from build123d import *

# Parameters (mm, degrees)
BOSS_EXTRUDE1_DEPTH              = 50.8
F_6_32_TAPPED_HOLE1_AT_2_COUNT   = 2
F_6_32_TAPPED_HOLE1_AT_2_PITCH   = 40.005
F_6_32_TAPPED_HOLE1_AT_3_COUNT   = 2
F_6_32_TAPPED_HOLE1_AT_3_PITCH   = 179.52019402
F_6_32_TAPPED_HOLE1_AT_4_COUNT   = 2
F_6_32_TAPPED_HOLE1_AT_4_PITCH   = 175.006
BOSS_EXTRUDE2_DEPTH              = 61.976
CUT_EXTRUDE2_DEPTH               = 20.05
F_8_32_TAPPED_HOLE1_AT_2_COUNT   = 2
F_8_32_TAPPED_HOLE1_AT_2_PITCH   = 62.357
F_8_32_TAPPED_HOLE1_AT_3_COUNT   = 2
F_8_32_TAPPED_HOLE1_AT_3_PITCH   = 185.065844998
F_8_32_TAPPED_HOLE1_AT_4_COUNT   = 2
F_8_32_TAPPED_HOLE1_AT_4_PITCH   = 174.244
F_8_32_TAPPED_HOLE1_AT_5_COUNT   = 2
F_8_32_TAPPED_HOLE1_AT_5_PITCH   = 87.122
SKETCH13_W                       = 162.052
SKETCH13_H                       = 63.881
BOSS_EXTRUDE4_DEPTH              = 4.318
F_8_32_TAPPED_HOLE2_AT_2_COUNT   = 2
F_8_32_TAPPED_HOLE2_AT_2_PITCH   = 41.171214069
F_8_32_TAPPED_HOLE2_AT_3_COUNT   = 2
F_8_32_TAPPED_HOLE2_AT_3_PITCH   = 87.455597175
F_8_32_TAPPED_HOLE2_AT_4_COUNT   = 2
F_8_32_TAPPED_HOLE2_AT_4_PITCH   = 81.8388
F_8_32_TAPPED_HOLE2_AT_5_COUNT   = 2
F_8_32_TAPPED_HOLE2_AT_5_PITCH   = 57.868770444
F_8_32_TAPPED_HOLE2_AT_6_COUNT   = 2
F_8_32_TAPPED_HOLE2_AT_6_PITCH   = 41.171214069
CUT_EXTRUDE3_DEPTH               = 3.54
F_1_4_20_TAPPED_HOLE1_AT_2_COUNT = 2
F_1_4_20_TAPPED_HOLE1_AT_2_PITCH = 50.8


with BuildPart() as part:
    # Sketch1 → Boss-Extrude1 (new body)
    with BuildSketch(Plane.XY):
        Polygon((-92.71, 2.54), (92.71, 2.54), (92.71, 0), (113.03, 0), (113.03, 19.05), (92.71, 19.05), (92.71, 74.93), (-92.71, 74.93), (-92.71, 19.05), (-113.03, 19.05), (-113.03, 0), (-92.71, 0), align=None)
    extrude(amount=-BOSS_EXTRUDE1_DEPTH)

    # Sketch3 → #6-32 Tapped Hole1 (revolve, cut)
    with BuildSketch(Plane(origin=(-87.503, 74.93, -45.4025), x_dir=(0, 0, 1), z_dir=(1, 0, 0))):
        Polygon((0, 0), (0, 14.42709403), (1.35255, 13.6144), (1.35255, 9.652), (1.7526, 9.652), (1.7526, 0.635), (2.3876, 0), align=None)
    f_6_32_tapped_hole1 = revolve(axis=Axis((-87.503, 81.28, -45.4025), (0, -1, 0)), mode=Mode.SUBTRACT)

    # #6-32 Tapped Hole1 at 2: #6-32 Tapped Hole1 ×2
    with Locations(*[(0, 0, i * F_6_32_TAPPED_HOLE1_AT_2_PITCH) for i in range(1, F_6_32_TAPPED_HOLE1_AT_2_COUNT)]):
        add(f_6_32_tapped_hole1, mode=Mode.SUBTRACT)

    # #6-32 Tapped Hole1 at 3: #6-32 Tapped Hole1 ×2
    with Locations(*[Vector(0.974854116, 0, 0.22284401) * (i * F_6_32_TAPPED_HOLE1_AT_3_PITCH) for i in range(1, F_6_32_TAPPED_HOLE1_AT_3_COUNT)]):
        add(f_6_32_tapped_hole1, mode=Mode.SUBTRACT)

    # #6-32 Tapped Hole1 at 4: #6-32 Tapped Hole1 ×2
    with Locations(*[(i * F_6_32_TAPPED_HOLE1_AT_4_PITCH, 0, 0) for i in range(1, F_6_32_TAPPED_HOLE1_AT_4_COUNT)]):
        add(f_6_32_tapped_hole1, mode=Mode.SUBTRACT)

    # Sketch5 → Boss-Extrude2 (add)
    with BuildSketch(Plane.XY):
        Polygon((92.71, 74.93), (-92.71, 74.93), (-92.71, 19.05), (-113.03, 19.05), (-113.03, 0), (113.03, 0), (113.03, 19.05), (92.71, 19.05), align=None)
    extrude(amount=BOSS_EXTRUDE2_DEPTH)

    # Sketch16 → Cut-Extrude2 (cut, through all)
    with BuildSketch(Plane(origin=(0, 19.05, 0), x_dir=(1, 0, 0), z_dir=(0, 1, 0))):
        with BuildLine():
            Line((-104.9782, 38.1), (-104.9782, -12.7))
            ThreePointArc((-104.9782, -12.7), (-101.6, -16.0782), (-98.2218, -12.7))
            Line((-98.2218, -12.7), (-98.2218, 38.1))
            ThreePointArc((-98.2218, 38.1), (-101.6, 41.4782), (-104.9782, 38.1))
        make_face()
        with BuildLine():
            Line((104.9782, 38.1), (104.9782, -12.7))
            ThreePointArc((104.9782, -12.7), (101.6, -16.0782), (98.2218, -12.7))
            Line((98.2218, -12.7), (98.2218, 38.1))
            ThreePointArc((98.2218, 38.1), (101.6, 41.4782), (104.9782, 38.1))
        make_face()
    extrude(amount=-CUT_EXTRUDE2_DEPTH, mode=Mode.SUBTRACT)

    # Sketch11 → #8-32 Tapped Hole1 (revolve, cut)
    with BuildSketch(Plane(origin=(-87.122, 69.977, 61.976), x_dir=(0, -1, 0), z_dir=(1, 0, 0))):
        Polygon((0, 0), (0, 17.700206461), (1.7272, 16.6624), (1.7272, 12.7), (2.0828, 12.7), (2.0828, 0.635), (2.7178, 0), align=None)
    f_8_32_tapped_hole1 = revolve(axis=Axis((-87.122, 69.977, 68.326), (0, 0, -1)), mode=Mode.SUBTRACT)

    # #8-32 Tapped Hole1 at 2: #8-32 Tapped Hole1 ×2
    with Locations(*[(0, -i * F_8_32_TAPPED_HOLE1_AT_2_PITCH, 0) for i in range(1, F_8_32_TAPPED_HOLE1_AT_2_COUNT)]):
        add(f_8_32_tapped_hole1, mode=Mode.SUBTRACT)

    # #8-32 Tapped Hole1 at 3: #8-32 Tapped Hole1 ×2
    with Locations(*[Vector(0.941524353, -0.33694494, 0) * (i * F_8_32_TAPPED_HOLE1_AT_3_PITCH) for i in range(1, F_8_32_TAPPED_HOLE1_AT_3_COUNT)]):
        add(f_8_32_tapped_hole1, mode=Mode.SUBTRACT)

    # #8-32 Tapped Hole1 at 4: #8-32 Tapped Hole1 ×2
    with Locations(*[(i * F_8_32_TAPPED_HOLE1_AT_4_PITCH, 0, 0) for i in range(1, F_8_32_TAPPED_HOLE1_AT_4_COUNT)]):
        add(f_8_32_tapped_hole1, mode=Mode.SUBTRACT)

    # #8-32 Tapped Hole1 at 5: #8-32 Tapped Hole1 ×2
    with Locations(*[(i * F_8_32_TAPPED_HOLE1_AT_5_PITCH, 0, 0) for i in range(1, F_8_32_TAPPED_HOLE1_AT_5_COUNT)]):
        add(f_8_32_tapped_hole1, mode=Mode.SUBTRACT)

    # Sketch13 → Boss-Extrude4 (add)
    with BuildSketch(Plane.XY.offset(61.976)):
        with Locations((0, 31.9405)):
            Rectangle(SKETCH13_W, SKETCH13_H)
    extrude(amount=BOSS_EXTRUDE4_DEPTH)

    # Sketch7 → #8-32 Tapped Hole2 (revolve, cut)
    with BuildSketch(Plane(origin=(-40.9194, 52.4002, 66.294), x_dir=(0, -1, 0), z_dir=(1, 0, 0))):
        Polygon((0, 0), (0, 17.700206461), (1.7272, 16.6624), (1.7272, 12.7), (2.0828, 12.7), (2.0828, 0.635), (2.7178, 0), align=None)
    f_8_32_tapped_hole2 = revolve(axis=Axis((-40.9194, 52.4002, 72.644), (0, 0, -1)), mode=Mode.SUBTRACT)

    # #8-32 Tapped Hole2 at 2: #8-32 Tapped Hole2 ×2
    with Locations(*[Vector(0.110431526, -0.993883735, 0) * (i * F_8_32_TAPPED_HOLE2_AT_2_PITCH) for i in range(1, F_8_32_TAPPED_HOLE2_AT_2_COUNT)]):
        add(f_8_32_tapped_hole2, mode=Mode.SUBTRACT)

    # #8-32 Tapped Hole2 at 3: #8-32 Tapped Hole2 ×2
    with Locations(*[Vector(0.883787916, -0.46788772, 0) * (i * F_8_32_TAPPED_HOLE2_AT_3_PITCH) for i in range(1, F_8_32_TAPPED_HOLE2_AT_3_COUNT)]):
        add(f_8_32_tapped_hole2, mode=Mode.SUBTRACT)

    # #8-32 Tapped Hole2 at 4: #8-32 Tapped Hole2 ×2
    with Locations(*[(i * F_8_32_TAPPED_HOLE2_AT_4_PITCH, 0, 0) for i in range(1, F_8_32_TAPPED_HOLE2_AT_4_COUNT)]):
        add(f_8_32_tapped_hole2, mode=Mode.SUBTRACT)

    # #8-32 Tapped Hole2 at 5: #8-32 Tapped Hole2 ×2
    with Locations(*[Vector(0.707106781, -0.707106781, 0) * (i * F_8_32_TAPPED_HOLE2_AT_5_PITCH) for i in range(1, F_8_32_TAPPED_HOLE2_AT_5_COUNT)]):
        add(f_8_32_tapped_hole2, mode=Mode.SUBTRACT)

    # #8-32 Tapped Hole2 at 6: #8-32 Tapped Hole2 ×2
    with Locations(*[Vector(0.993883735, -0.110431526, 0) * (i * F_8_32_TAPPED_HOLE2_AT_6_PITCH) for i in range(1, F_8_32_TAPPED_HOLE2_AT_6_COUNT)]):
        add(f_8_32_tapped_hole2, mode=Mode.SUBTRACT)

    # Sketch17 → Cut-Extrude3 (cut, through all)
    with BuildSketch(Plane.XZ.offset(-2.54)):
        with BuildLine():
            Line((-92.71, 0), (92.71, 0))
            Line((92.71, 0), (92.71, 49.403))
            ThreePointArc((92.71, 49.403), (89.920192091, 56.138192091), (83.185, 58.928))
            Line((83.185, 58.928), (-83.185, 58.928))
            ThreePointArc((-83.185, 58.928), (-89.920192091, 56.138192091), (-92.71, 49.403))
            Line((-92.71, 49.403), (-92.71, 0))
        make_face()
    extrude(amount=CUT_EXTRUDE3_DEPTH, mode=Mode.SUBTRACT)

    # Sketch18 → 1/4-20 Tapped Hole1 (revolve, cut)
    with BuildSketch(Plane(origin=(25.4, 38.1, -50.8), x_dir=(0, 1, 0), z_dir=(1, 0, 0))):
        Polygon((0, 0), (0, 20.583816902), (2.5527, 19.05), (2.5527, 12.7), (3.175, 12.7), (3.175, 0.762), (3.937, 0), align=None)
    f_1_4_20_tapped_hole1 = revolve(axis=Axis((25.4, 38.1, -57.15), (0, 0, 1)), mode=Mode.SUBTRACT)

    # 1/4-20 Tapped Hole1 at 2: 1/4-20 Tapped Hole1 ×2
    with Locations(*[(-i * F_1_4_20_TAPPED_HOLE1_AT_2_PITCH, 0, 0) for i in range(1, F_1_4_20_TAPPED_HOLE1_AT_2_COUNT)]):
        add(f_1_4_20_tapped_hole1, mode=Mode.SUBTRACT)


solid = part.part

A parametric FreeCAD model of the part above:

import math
import FreeCAD as App
import Part
import Sketcher

V = App.Vector
Q = App.Units.Quantity

doc = App.newDocument("Part")
params = doc.addObject("Spreadsheet::Sheet", "Params")
for row, (alias, value) in enumerate([
    ("sketch1_width", "7.3 in"),
    ("sketch1_width2", "0.8 in"),
    ("sketch1_height", "0.1 in"),
    ("sketch1_height2", "2.2 in"),
    ("sketch1_height3", "0.75 in"),
    ("pad1_length", "2 in"),
    ("sketch2_width", "0.355 in"),
    ("sketch2_width2", "0.156 in"),
    ("sketch2_height", "0.094 in"),
    ("groove_angle", "360 deg"),
    ("linearpattern_pitch", "1.575 in"),
    ("linearpattern2_pitch", "179.520194 mm"),
    ("linearpattern3_pitch", "6.89 in"),
    ("sketch3_width", "7.3 in"),
    ("sketch3_width2", "0.8 in"),
    ("sketch3_height", "2.2 in"),
    ("sketch3_height2", "0.75 in"),
    ("pad2_length", "2.44 in"),
    ("sketch4_height", "2 in"),
    ("sketch4_radius", "0.133 in"),
    ("sketch5_width", "0.107 in"),
    ("sketch5_width2", "0.014 in"),
    ("sketch5_height", "0.475 in"),
    ("sketch5_height2", "0.156 in"),
    ("groove2_angle", "360 deg"),
    ("linearpattern4_pitch", "2.455 in"),
    ("linearpattern5_pitch", "185.065845 mm"),
    ("linearpattern6_pitch", "6.86 in"),
    ("linearpattern7_pitch", "3.43 in"),
    ("sketch6_width", "6.38 in"),
    ("sketch6_height", "2.515 in"),
    ("pad3_length", "0.17 in"),
    ("sketch7_width", "0.107 in"),
    ("sketch7_width2", "0.014 in"),
    ("sketch7_height", "0.475 in"),
    ("sketch7_height2", "0.156 in"),
    ("groove3_angle", "360 deg"),
    ("linearpattern8_pitch", "41.171214 mm"),
    ("linearpattern9_pitch", "87.455597 mm"),
    ("linearpattern10_pitch", "3.222 in"),
    ("linearpattern11_pitch", "57.86877 mm"),
    ("linearpattern12_pitch", "41.171214 mm"),
    ("sketch8_width", "7.3 in"),
    ("sketch8_radius", "0.375 in"),
    ("sketch8_height", "1.945 in"),
    ("sketch9_height", "0.47 in"),
    ("sketch9_height2", "0.25 in"),
    ("sketch9_width", "0.155 in"),
    ("groove4_angle", "360 deg"),
    ("linearpattern13_pitch", "2 in"),
], start=1):
    params.set(f"A{row}", alias)
    params.set(f"B{row}", "=" + value)
    params.setAlias(f"B{row}", alias)

body = doc.addObject("PartDesign::Body", "Body")

sketch1 = body.newObject("Sketcher::SketchObject", "Sketch")
sketch1.AttachmentSupport = (doc.getObject("XY_Plane"), [""])
sketch1.MapMode = "FlatFace"
sketch1.addGeometry([
    Part.LineSegment(V(-92.7, 2.5, 0), V(92.7, 2.5, 0)),
    Part.LineSegment(V(92.7, 2.5, 0), V(92.7, 0, 0)),
    Part.LineSegment(V(92.7, 0, 0), V(113, 0, 0)),
    Part.LineSegment(V(113, 0, 0), V(113, 19.1, 0)),
    Part.LineSegment(V(113, 19.1, 0), V(92.7, 19.1, 0)),
    Part.LineSegment(V(92.7, 19.1, 0), V(92.7, 74.9, 0)),
    Part.LineSegment(V(92.7, 74.9, 0), V(-92.7, 74.9, 0)),
    Part.LineSegment(V(-92.7, 74.9, 0), V(-92.7, 19.1, 0)),
    Part.LineSegment(V(-92.7, 19.1, 0), V(-113, 19.1, 0)),
    Part.LineSegment(V(-113, 19.1, 0), V(-113, 0, 0)),
    Part.LineSegment(V(-113, 0, 0), V(-92.7, 0, 0)),
    Part.LineSegment(V(-92.7, 0, 0), V(-92.7, 2.5, 0)),
], False)
sketch1.addConstraint([
    Sketcher.Constraint("Coincident", 0, 2, 1, 1),
    Sketcher.Constraint("Coincident", 1, 2, 2, 1),
    Sketcher.Constraint("Coincident", 2, 2, 3, 1),
    Sketcher.Constraint("Coincident", 3, 2, 4, 1),
    Sketcher.Constraint("Coincident", 4, 2, 5, 1),
    Sketcher.Constraint("Coincident", 5, 2, 6, 1),
    Sketcher.Constraint("Coincident", 6, 2, 7, 1),
    Sketcher.Constraint("Coincident", 7, 2, 8, 1),
    Sketcher.Constraint("Coincident", 8, 2, 9, 1),
    Sketcher.Constraint("Coincident", 9, 2, 10, 1),
    Sketcher.Constraint("Coincident", 10, 2, 11, 1),
    Sketcher.Constraint("Coincident", 11, 2, 0, 1),
    Sketcher.Constraint("Horizontal", 0),
    Sketcher.Constraint("Vertical", 1),
    Sketcher.Constraint("Horizontal", 2),
    Sketcher.Constraint("Vertical", 3),
    Sketcher.Constraint("Horizontal", 4),
    Sketcher.Constraint("Vertical", 5),
    Sketcher.Constraint("Horizontal", 6),
    Sketcher.Constraint("Vertical", 7),
    Sketcher.Constraint("Horizontal", 8),
    Sketcher.Constraint("Vertical", 9),
    Sketcher.Constraint("Horizontal", 10),
    Sketcher.Constraint("Vertical", 11),
    Sketcher.Constraint("Symmetric", 2, 2, 9, 2, -1, 1),
    Sketcher.Constraint("Symmetric", 4, 2, 7, 2, -2),
    Sketcher.Constraint("Symmetric", 1, 2, 10, 2, -2),
    Sketcher.Constraint("Vertical", 1, 2, 4, 2),
    Sketcher.Constraint("DistanceX", 0, 1, 0, 2, Q("7.3 in")),
    Sketcher.Constraint("DistanceX", 2, 1, 2, 2, Q("0.8 in")),
    Sketcher.Constraint("DistanceY", 1, 2, 1, 1, Q("0.1 in")),
    Sketcher.Constraint("DistanceY", 5, 1, 5, 2, Q("2.2 in")),
    Sketcher.Constraint("DistanceY", 3, 1, 3, 2, Q("0.75 in")),
])
sketch1.setExpression("Constraints[28]", "Params.sketch1_width")
sketch1.setExpression("Constraints[29]", "Params.sketch1_width2")
sketch1.setExpression("Constraints[30]", "Params.sketch1_height")
sketch1.setExpression("Constraints[31]", "Params.sketch1_height2")
sketch1.setExpression("Constraints[32]", "Params.sketch1_height3")
pad1 = body.newObject("PartDesign::Pad", "Pad")
pad1.Profile = sketch1
pad1.setExpression("Length", "Params.pad1_length")
pad1.Reversed = True

sketch2 = body.newObject("Sketcher::SketchObject", "Sketch001")
sketch2.AttachmentSupport = (doc.getObject("YZ_Plane"), [""])
sketch2.MapMode = "FlatFace"
sketch2.AttachmentOffset = App.Placement(V(0, 0, -3.445 * 25.4), App.Rotation())
sketch2.addGeometry([
    Part.LineSegment(V(60.5, -45.4, 0), V(74.93, -45.4, 0)),
    Part.LineSegment(V(74.93, -45.4, 0), V(74.93, -43.01, 0)),
    Part.LineSegment(V(74.93, -43.01, 0), V(74.3, -43.65, 0)),
    Part.LineSegment(V(74.3, -43.65, 0), V(65.28, -43.65, 0)),
    Part.LineSegment(V(65.28, -43.65, 0), V(65.28, -44.05, 0)),
    Part.LineSegment(V(65.28, -44.05, 0), V(61.32, -44.05, 0)),
    Part.LineSegment(V(61.32, -44.05, 0), V(60.5, -45.4, 0)),
], False)
sketch2.addGeometry(Part.LineSegment(V(74.93, -45.4, 0), V(60.5, -45.4, 0)), True)
sketch2.addConstraint([
    Sketcher.Constraint("Coincident", 0, 2, 1, 1),
    Sketcher.Constraint("Coincident", 1, 2, 2, 1),
    Sketcher.Constraint("Coincident", 2, 2, 3, 1),
    Sketcher.Constraint("Coincident", 3, 2, 4, 1),
    Sketcher.Constraint("Coincident", 4, 2, 5, 1),
    Sketcher.Constraint("Coincident", 5, 2, 6, 1),
    Sketcher.Constraint("Coincident", 6, 2, 0, 1),
    Sketcher.Constraint("Horizontal", 0),
    Sketcher.Constraint("Vertical", 1),
    Sketcher.Constraint("Horizontal", 3),
    Sketcher.Constraint("Vertical", 4),
    Sketcher.Constraint("Horizontal", 5),
    Sketcher.Constraint("Horizontal", 7),
    Sketcher.Constraint("Coincident", 7, 1, 0, 2),
    Sketcher.Constraint("Equal", 0, 7),
    Sketcher.Constraint("Angle", 2, Q("-135 deg")),
    Sketcher.Constraint("Angle", 6, Q("-121 deg")),
    Sketcher.Constraint("DistanceX", 3, 2, 3, 1, Q("0.355 in")),
    Sketcher.Constraint("DistanceX", 5, 2, 5, 1, Q("0.156 in")),
    Sketcher.Constraint("DistanceY", 1, 1, 1, 2, Q("0.094 in")),
    Sketcher.Constraint("DistanceX", -1, 1, 0, 2, Q("2.95 in")),
    Sketcher.Constraint("DistanceX", -1, 1, 3, 2, Q("2.57 in")),
    Sketcher.Constraint("DistanceY", 0, 2, -1, 1, Q("1.7875 in")),
    Sketcher.Constraint("DistanceY", 4, 2, 4, 1, 0.40005),
])
sketch2.setExpression("Constraints[17]", "Params.sketch2_width")
sketch2.setExpression("Constraints[18]", "Params.sketch2_width2")
sketch2.setExpression("Constraints[19]", "Params.sketch2_height")
groove = body.newObject("PartDesign::Groove", "Groove")
groove.Profile = sketch2
groove.ReferenceAxis = (sketch2, ["Axis0"])
groove.setExpression("Angle", "Params.groove_angle")
doc.recompute()

linearpattern = body.newObject("PartDesign::LinearPattern", "LinearPattern")
linearpattern.Originals = [groove]
linearpattern.Direction = (doc.getObject("Z_Axis"), [""])
linearpattern.Mode = "offset"
linearpattern.setExpression("Offset", "Params.linearpattern_pitch")
linearpattern.Occurrences = 2
body.Tip = linearpattern
doc.recompute()

datumline = body.newObject("PartDesign::Line", "DatumLine")
datumline.Placement = App.Placement(V(0, 0, 0), App.Rotation(V(0, 0, 1), V(0.974854116, 0, 0.22284401)))
linearpattern2 = body.newObject("PartDesign::LinearPattern", "LinearPattern001")
linearpattern2.Originals = [groove]
linearpattern2.Direction = (datumline, [""])
linearpattern2.Mode = "offset"
linearpattern2.setExpression("Offset", "Params.linearpattern2_pitch")
linearpattern2.Occurrences = 2
body.Tip = linearpattern2
doc.recompute()

linearpattern3 = body.newObject("PartDesign::LinearPattern", "LinearPattern002")
linearpattern3.Originals = [groove]
linearpattern3.Direction = (doc.getObject("X_Axis"), [""])
linearpattern3.Mode = "offset"
linearpattern3.setExpression("Offset", "Params.linearpattern3_pitch")
linearpattern3.Occurrences = 2
body.Tip = linearpattern3

sketch3 = body.newObject("Sketcher::SketchObject", "Sketch002")
sketch3.AttachmentSupport = (doc.getObject("XY_Plane"), [""])
sketch3.MapMode = "FlatFace"
sketch3.addGeometry([
    Part.LineSegment(V(93, 75, 0), V(-93, 75, 0)),
    Part.LineSegment(V(-93, 75, 0), V(-93, 19, 0)),
    Part.LineSegment(V(-93, 19, 0), V(-113, 19, 0)),
    Part.LineSegment(V(-113, 19, 0), V(-113, 0, 0)),
    Part.LineSegment(V(-113, 0, 0), V(113, 0, 0)),
    Part.LineSegment(V(113, 0, 0), V(113, 19, 0)),
    Part.LineSegment(V(113, 19, 0), V(93, 19, 0)),
    Part.LineSegment(V(93, 19, 0), V(93, 75, 0)),
], False)
sketch3.addConstraint([
    Sketcher.Constraint("Coincident", 0, 2, 1, 1),
    Sketcher.Constraint("Coincident", 1, 2, 2, 1),
    Sketcher.Constraint("Coincident", 2, 2, 3, 1),
    Sketcher.Constraint("Coincident", 3, 2, 4, 1),
    Sketcher.Constraint("Coincident", 4, 2, 5, 1),
    Sketcher.Constraint("Coincident", 5, 2, 6, 1),
    Sketcher.Constraint("Coincident", 6, 2, 7, 1),
    Sketcher.Constraint("Coincident", 7, 2, 0, 1),
    Sketcher.Constraint("Horizontal", 0),
    Sketcher.Constraint("Vertical", 1),
    Sketcher.Constraint("Horizontal", 2),
    Sketcher.Constraint("Vertical", 3),
    Sketcher.Constraint("Horizontal", 4),
    Sketcher.Constraint("Vertical", 5),
    Sketcher.Constraint("Horizontal", 6),
    Sketcher.Constraint("Vertical", 7),
    Sketcher.Constraint("Symmetric", 3, 2, 4, 2, -1, 1),
    Sketcher.Constraint("Symmetric", 1, 2, 6, 2, -2),
    Sketcher.Constraint("DistanceX", 0, 2, 0, 1, Q("7.3 in")),
    Sketcher.Constraint("DistanceX", 2, 2, 2, 1, Q("0.8 in")),
    Sketcher.Constraint("DistanceY", 1, 2, 1, 1, Q("2.2 in")),
    Sketcher.Constraint("DistanceY", 3, 2, 3, 1, Q("0.75 in")),
])
sketch3.setExpression("Constraints[18]", "Params.sketch3_width")
sketch3.setExpression("Constraints[19]", "Params.sketch3_width2")
sketch3.setExpression("Constraints[20]", "Params.sketch3_height")
sketch3.setExpression("Constraints[21]", "Params.sketch3_height2")
pad2 = body.newObject("PartDesign::Pad", "Pad001")
pad2.Profile = sketch3
pad2.setExpression("Length", "Params.pad2_length")

sketch4 = body.newObject("Sketcher::SketchObject", "Sketch003")
sketch4.AttachmentSupport = (doc.getObject("XZ_Plane"), [""])
sketch4.MapMode = "FlatFace"
sketch4.AttachmentOffset = App.Placement(V(0, 0, -0.75 * 25.4), App.Rotation())
sketch4.addGeometry([
    Part.LineSegment(V(-105, -38.1, 0), V(-105, 12.7, 0)),
    Part.ArcOfCircle(Part.Circle(V(-101.6, 12.7, 0), V(0, 0, 1), 3.4), math.radians(0), math.radians(180)),
    Part.LineSegment(V(-98.2, 12.7, 0), V(-98.2, -38.1, 0)),
    Part.ArcOfCircle(Part.Circle(V(-101.6, -38.1, 0), V(0, 0, 1), 3.4), math.radians(180), math.radians(360)),
    Part.LineSegment(V(105, 12.7, 0), V(105, -38.1, 0)),
    Part.ArcOfCircle(Part.Circle(V(101.6, -38.1, 0), V(0, 0, 1), 3.4), math.radians(180), math.radians(360)),
    Part.LineSegment(V(98.2, -38.1, 0), V(98.2, 12.7, 0)),
    Part.ArcOfCircle(Part.Circle(V(101.6, 12.7, 0), V(0, 0, 1), 3.4), math.radians(0), math.radians(180)),
], False)
sketch4.addConstraint([
    Sketcher.Constraint("Tangent", 0, 2, 1, 2),
    Sketcher.Constraint("Tangent", 1, 1, 2, 1),
    Sketcher.Constraint("Tangent", 2, 2, 3, 2),
    Sketcher.Constraint("Tangent", 3, 1, 0, 1),
    Sketcher.Constraint("Tangent", 4, 2, 5, 2),
    Sketcher.Constraint("Tangent", 5, 1, 6, 1),
    Sketcher.Constraint("Tangent", 6, 2, 7, 2),
    Sketcher.Constraint("Tangent", 7, 1, 4, 1),
    Sketcher.Constraint("Vertical", 0),
    Sketcher.Constraint("Vertical", 2),
    Sketcher.Constraint("Vertical", 4),
    Sketcher.Constraint("Vertical", 6),
    Sketcher.Constraint("Equal", 3, 5),
    Sketcher.Constraint("Symmetric", 3, 3, 5, 3, -2),
    Sketcher.Constraint("Horizontal", 1, 3, 7, 3),
    Sketcher.Constraint("DistanceY", 0, 1, 0, 2, Q("2 in")),
    Sketcher.Constraint("DistanceX", 1, 3, -1, 1, Q("4 in")),
    Sketcher.Constraint("Radius", 1, Q("0.133 in")),
    Sketcher.Constraint("DistanceY", -1, 1, 1, 3, Q("0.5 in")),
])
sketch4.setExpression("Constraints[15]", "Params.sketch4_height")
sketch4.setExpression("Constraints[17]", "Params.sketch4_radius")
pocket1 = body.newObject("PartDesign::Pocket", "Pocket")
pocket1.Profile = sketch4
pocket1.Type = "ThroughAll"
pocket1.Reversed = True

sketch5 = body.newObject("Sketcher::SketchObject", "Sketch004")
sketch5.AttachmentSupport = (doc.getObject("YZ_Plane"), [""])
sketch5.MapMode = "FlatFace"
sketch5.AttachmentOffset = App.Placement(V(0, 0, -3.43 * 25.4), App.Rotation())
sketch5.addGeometry([
    Part.LineSegment(V(69.98, 44.28, 0), V(69.98, 61.98, 0)),
    Part.LineSegment(V(69.98, 61.98, 0), V(67.26, 61.98, 0)),
    Part.LineSegment(V(67.26, 61.98, 0), V(67.89, 61.34, 0)),
    Part.LineSegment(V(67.89, 61.34, 0), V(67.89, 49.28, 0)),
    Part.LineSegment(V(67.89, 49.28, 0), V(68.25, 49.28, 0)),
    Part.LineSegment(V(68.25, 49.28, 0), V(68.25, 45.31, 0)),
    Part.LineSegment(V(68.25, 45.31, 0), V(69.98, 44.28, 0)),
], False)
sketch5.addGeometry(Part.LineSegment(V(69.98, 61.98, 0), V(69.98, 44.28, 0)), True)
sketch5.addConstraint([
    Sketcher.Constraint("Coincident", 0, 2, 1, 1),
    Sketcher.Constraint("Coincident", 1, 2, 2, 1),
    Sketcher.Constraint("Coincident", 2, 2, 3, 1),
    Sketcher.Constraint("Coincident", 3, 2, 4, 1),
    Sketcher.Constraint("Coincident", 4, 2, 5, 1),
    Sketcher.Constraint("Coincident", 5, 2, 6, 1),
    Sketcher.Constraint("Coincident", 6, 2, 0, 1),
    Sketcher.Constraint("Vertical", 0),
    Sketcher.Constraint("Horizontal", 1),
    Sketcher.Constraint("Vertical", 3),
    Sketcher.Constraint("Horizontal", 4),
    Sketcher.Constraint("Vertical", 5),
    Sketcher.Constraint("Vertical", 7),
    Sketcher.Constraint("Coincident", 7, 1, 0, 2),
    Sketcher.Constraint("Equal", 0, 7),
    Sketcher.Constraint("Angle", 2, Q("-45 deg")),
    Sketcher.Constraint("Angle", 6, Q("-31 deg")),
    Sketcher.Constraint("DistanceY", 3, 2, 1, 2, Q("0.5 in")),
    Sketcher.Constraint("DistanceX", 1, 2, 1, 1, Q("0.107 in")),
    Sketcher.Constraint("DistanceX", 4, 1, 4, 2, Q("0.014 in")),
    Sketcher.Constraint("DistanceY", 3, 2, 3, 1, Q("0.475 in")),
    Sketcher.Constraint("DistanceY", 5, 2, 5, 1, Q("0.156 in")),
    Sketcher.Constraint("DistanceY", -1, 1, 0, 2, Q("2.44 in")),
    Sketcher.Constraint("DistanceX", -1, 1, 0, 2, Q("2.755 in")),
])
sketch5.setExpression("Constraints[18]", "Params.sketch5_width")
sketch5.setExpression("Constraints[19]", "Params.sketch5_width2")
sketch5.setExpression("Constraints[20]", "Params.sketch5_height")
sketch5.setExpression("Constraints[21]", "Params.sketch5_height2")
groove2 = body.newObject("PartDesign::Groove", "Groove001")
groove2.Profile = sketch5
groove2.ReferenceAxis = (sketch5, ["Axis0"])
groove2.setExpression("Angle", "Params.groove2_angle")
doc.recompute()

linearpattern4 = body.newObject("PartDesign::LinearPattern", "LinearPattern003")
linearpattern4.Originals = [groove2]
linearpattern4.Direction = (doc.getObject("Y_Axis"), [""])
linearpattern4.Mode = "offset"
linearpattern4.setExpression("Offset", "Params.linearpattern4_pitch")
linearpattern4.Occurrences = 2
linearpattern4.Reversed = True
body.Tip = linearpattern4
doc.recompute()

datumline2 = body.newObject("PartDesign::Line", "DatumLine001")
datumline2.Placement = App.Placement(V(0, 0, 0), App.Rotation(V(0, 0, 1), V(0.941524353, -0.33694494, 0)))
linearpattern5 = body.newObject("PartDesign::LinearPattern", "LinearPattern004")
linearpattern5.Originals = [groove2]
linearpattern5.Direction = (datumline2, [""])
linearpattern5.Mode = "offset"
linearpattern5.setExpression("Offset", "Params.linearpattern5_pitch")
linearpattern5.Occurrences = 2
body.Tip = linearpattern5
doc.recompute()

linearpattern6 = body.newObject("PartDesign::LinearPattern", "LinearPattern005")
linearpattern6.Originals = [groove2]
linearpattern6.Direction = (doc.getObject("X_Axis"), [""])
linearpattern6.Mode = "offset"
linearpattern6.setExpression("Offset", "Params.linearpattern6_pitch")
linearpattern6.Occurrences = 2
body.Tip = linearpattern6
doc.recompute()

linearpattern7 = body.newObject("PartDesign::LinearPattern", "LinearPattern006")
linearpattern7.Originals = [groove2]
linearpattern7.Direction = (doc.getObject("X_Axis"), [""])
linearpattern7.Mode = "offset"
linearpattern7.setExpression("Offset", "Params.linearpattern7_pitch")
linearpattern7.Occurrences = 2
body.Tip = linearpattern7

sketch6 = body.newObject("Sketcher::SketchObject", "Sketch005")
sketch6.AttachmentSupport = (doc.getObject("XY_Plane"), [""])
sketch6.MapMode = "FlatFace"
sketch6.AttachmentOffset = App.Placement(V(0, 0, 2.44 * 25.4), App.Rotation())
sketch6.addGeometry([
    Part.LineSegment(V(-81, 64, 0), V(-81, 0, 0)),
    Part.LineSegment(V(-81, 0, 0), V(81, 0, 0)),
    Part.LineSegment(V(81, 0, 0), V(81, 64, 0)),
    Part.LineSegment(V(81, 64, 0), V(-81, 64, 0)),
], False)
sketch6.addConstraint([
    Sketcher.Constraint("Coincident", 0, 2, 1, 1),
    Sketcher.Constraint("Coincident", 1, 2, 2, 1),
    Sketcher.Constraint("Coincident", 2, 2, 3, 1),
    Sketcher.Constraint("Coincident", 3, 2, 0, 1),
    Sketcher.Constraint("Vertical", 0),
    Sketcher.Constraint("Horizontal", 1),
    Sketcher.Constraint("Vertical", 2),
    Sketcher.Constraint("Horizontal", 3),
    Sketcher.Constraint("Symmetric", 0, 2, 1, 2, -1, 1),
    Sketcher.Constraint("DistanceX", 1, 1, 1, 2, Q("6.38 in")),
    Sketcher.Constraint("DistanceY", 0, 2, 0, 1, Q("2.515 in")),
])
sketch6.setExpression("Constraints[9]", "Params.sketch6_width")
sketch6.setExpression("Constraints[10]", "Params.sketch6_height")
pad3 = body.newObject("PartDesign::Pad", "Pad002")
pad3.Profile = sketch6
pad3.setExpression("Length", "Params.pad3_length")

sketch7 = body.newObject("Sketcher::SketchObject", "Sketch006")
sketch7.AttachmentSupport = (doc.getObject("YZ_Plane"), [""])
sketch7.MapMode = "FlatFace"
sketch7.AttachmentOffset = App.Placement(V(0, 0, -1.611 * 25.4), App.Rotation())
sketch7.addGeometry([
    Part.LineSegment(V(52.4, 48.59, 0), V(52.4, 66.29, 0)),
    Part.LineSegment(V(52.4, 66.29, 0), V(49.68, 66.29, 0)),
    Part.LineSegment(V(49.68, 66.29, 0), V(50.32, 65.66, 0)),
    Part.LineSegment(V(50.32, 65.66, 0), V(50.32, 53.59, 0)),
    Part.LineSegment(V(50.32, 53.59, 0), V(50.67, 53.59, 0)),
    Part.LineSegment(V(50.67, 53.59, 0), V(50.67, 49.63, 0)),
    Part.LineSegment(V(50.67, 49.63, 0), V(52.4, 48.59, 0)),
], False)
sketch7.addGeometry(Part.LineSegment(V(52.4, 66.29, 0), V(52.4, 48.59, 0)), True)
sketch7.addConstraint([
    Sketcher.Constraint("Coincident", 0, 2, 1, 1),
    Sketcher.Constraint("Coincident", 1, 2, 2, 1),
    Sketcher.Constraint("Coincident", 2, 2, 3, 1),
    Sketcher.Constraint("Coincident", 3, 2, 4, 1),
    Sketcher.Constraint("Coincident", 4, 2, 5, 1),
    Sketcher.Constraint("Coincident", 5, 2, 6, 1),
    Sketcher.Constraint("Coincident", 6, 2, 0, 1),
    Sketcher.Constraint("Vertical", 0),
    Sketcher.Constraint("Horizontal", 1),
    Sketcher.Constraint("Vertical", 3),
    Sketcher.Constraint("Horizontal", 4),
    Sketcher.Constraint("Vertical", 5),
    Sketcher.Constraint("Vertical", 7),
    Sketcher.Constraint("Coincident", 7, 1, 0, 2),
    Sketcher.Constraint("Equal", 0, 7),
    Sketcher.Constraint("Angle", 2, Q("-45 deg")),
    Sketcher.Constraint("Angle", 6, Q("-31 deg")),
    Sketcher.Constraint("DistanceY", 3, 2, 1, 2, Q("0.5 in")),
    Sketcher.Constraint("DistanceX", 1, 2, 1, 1, Q("0.107 in")),
    Sketcher.Constraint("DistanceX", 4, 1, 4, 2, Q("0.014 in")),
    Sketcher.Constraint("DistanceY", 3, 2, 3, 1, Q("0.475 in")),
    Sketcher.Constraint("DistanceY", 5, 2, 5, 1, Q("0.156 in")),
    Sketcher.Constraint("DistanceY", -1, 1, 0, 2, Q("2.61 in")),
    Sketcher.Constraint("DistanceX", -1, 1, 0, 2, Q("2.063 in")),
])
sketch7.setExpression("Constraints[18]", "Params.sketch7_width")
sketch7.setExpression("Constraints[19]", "Params.sketch7_width2")
sketch7.setExpression("Constraints[20]", "Params.sketch7_height")
sketch7.setExpression("Constraints[21]", "Params.sketch7_height2")
groove3 = body.newObject("PartDesign::Groove", "Groove002")
groove3.Profile = sketch7
groove3.ReferenceAxis = (sketch7, ["Axis0"])
groove3.setExpression("Angle", "Params.groove3_angle")
doc.recompute()

datumline3 = body.newObject("PartDesign::Line", "DatumLine002")
datumline3.Placement = App.Placement(V(0, 0, 0), App.Rotation(V(0, 0, 1), V(0.110431526, -0.993883735, 0)))
linearpattern8 = body.newObject("PartDesign::LinearPattern", "LinearPattern007")
linearpattern8.Originals = [groove3]
linearpattern8.Direction = (datumline3, [""])
linearpattern8.Mode = "offset"
linearpattern8.setExpression("Offset", "Params.linearpattern8_pitch")
linearpattern8.Occurrences = 2
body.Tip = linearpattern8
doc.recompute()

datumline4 = body.newObject("PartDesign::Line", "DatumLine003")
datumline4.Placement = App.Placement(V(0, 0, 0), App.Rotation(V(0, 0, 1), V(0.883787916, -0.46788772, 0)))
linearpattern9 = body.newObject("PartDesign::LinearPattern", "LinearPattern008")
linearpattern9.Originals = [groove3]
linearpattern9.Direction = (datumline4, [""])
linearpattern9.Mode = "offset"
linearpattern9.setExpression("Offset", "Params.linearpattern9_pitch")
linearpattern9.Occurrences = 2
body.Tip = linearpattern9
doc.recompute()

linearpattern10 = body.newObject("PartDesign::LinearPattern", "LinearPattern009")
linearpattern10.Originals = [groove3]
linearpattern10.Direction = (doc.getObject("X_Axis"), [""])
linearpattern10.Mode = "offset"
linearpattern10.setExpression("Offset", "Params.linearpattern10_pitch")
linearpattern10.Occurrences = 2
body.Tip = linearpattern10
doc.recompute()

datumline5 = body.newObject("PartDesign::Line", "DatumLine004")
datumline5.Placement = App.Placement(V(0, 0, 0), App.Rotation(V(0, 0, 1), V(0.707106781, -0.707106781, 0)))
linearpattern11 = body.newObject("PartDesign::LinearPattern", "LinearPattern010")
linearpattern11.Originals = [groove3]
linearpattern11.Direction = (datumline5, [""])
linearpattern11.Mode = "offset"
linearpattern11.setExpression("Offset", "Params.linearpattern11_pitch")
linearpattern11.Occurrences = 2
body.Tip = linearpattern11
doc.recompute()

datumline6 = body.newObject("PartDesign::Line", "DatumLine005")
datumline6.Placement = App.Placement(V(0, 0, 0), App.Rotation(V(0, 0, 1), V(0.993883735, -0.110431526, 0)))
linearpattern12 = body.newObject("PartDesign::LinearPattern", "LinearPattern011")
linearpattern12.Originals = [groove3]
linearpattern12.Direction = (datumline6, [""])
linearpattern12.Mode = "offset"
linearpattern12.setExpression("Offset", "Params.linearpattern12_pitch")
linearpattern12.Occurrences = 2
body.Tip = linearpattern12

sketch8 = body.newObject("Sketcher::SketchObject", "Sketch007")
sketch8.AttachmentSupport = (doc.getObject("XZ_Plane"), [""])
sketch8.MapMode = "FlatFace"
sketch8.AttachmentOffset = App.Placement(V(0, 0, -0.1 * 25.4), App.Rotation())
sketch8.addGeometry([
    Part.LineSegment(V(-93, 0, 0), V(93, 0, 0)),
    Part.LineSegment(V(93, 0, 0), V(93, 49, 0)),
    Part.ArcOfCircle(Part.Circle(V(83, 49, 0), V(0, 0, 1), 10), math.radians(0), math.radians(90)),
    Part.LineSegment(V(83, 59, 0), V(-83, 59, 0)),
    Part.ArcOfCircle(Part.Circle(V(-83, 49, 0), V(0, 0, 1), 10), math.radians(90), math.radians(180)),
    Part.LineSegment(V(-93, 49, 0), V(-93, 0, 0)),
], False)
sketch8.addConstraint([
    Sketcher.Constraint("Coincident", 0, 2, 1, 1),
    Sketcher.Constraint("Tangent", 1, 2, 2, 1),
    Sketcher.Constraint("Tangent", 2, 2, 3, 1),
    Sketcher.Constraint("Tangent", 3, 2, 4, 1),
    Sketcher.Constraint("Tangent", 4, 2, 5, 1),
    Sketcher.Constraint("Coincident", 5, 2, 0, 1),
    Sketcher.Constraint("Horizontal", 0),
    Sketcher.Constraint("Vertical", 1),
    Sketcher.Constraint("Horizontal", 3),
    Sketcher.Constraint("Vertical", 5),
    Sketcher.Constraint("Equal", 2, 4),
    Sketcher.Constraint("Symmetric", 0, 2, 5, 2, -1, 1),
    Sketcher.Constraint("DistanceX", 0, 1, 0, 2, Q("7.3 in")),
    Sketcher.Constraint("Radius", 2, Q("0.375 in")),
    Sketcher.Constraint("DistanceY", 1, 1, 1, 2, Q("1.945 in")),
])
sketch8.setExpression("Constraints[12]", "Params.sketch8_width")
sketch8.setExpression("Constraints[13]", "Params.sketch8_radius")
sketch8.setExpression("Constraints[14]", "Params.sketch8_height")
pocket2 = body.newObject("PartDesign::Pocket", "Pocket001")
pocket2.Profile = sketch8
pocket2.Type = "ThroughAll"
pocket2.Reversed = True

sketch9 = body.newObject("Sketcher::SketchObject", "Sketch008")
sketch9.AttachmentSupport = (doc.getObject("YZ_Plane"), [""])
sketch9.MapMode = "FlatFace"
sketch9.AttachmentOffset = App.Placement(V(0, 0, 1 * 25.4), App.Rotation())
sketch9.addGeometry([
    Part.LineSegment(V(38.1, -30.2, 0), V(38.1, -50.8, 0)),
    Part.LineSegment(V(38.1, -50.8, 0), V(42, -50.8, 0)),
    Part.LineSegment(V(42, -50.8, 0), V(41.3, -50, 0)),
    Part.LineSegment(V(41.3, -50, 0), V(41.3, -38.1, 0)),
    Part.LineSegment(V(41.3, -38.1, 0), V(40.7, -38.1, 0)),
    Part.LineSegment(V(40.7, -38.1, 0), V(40.7, -31.8, 0)),
    Part.LineSegment(V(40.7, -31.8, 0), V(38.1, -30.2, 0)),
], False)
sketch9.addGeometry(Part.LineSegment(V(38.1, -50.8, 0), V(38.1, -30.2, 0)), True)
sketch9.addConstraint([
    Sketcher.Constraint("Coincident", 0, 2, 1, 1),
    Sketcher.Constraint("Coincident", 1, 2, 2, 1),
    Sketcher.Constraint("Coincident", 2, 2, 3, 1),
    Sketcher.Constraint("Coincident", 3, 2, 4, 1),
    Sketcher.Constraint("Coincident", 4, 2, 5, 1),
    Sketcher.Constraint("Coincident", 5, 2, 6, 1),
    Sketcher.Constraint("Coincident", 6, 2, 0, 1),
    Sketcher.Constraint("Vertical", 0),
    Sketcher.Constraint("Horizontal", 1),
    Sketcher.Constraint("Vertical", 3),
    Sketcher.Constraint("Horizontal", 4),
    Sketcher.Constraint("Vertical", 5),
    Sketcher.Constraint("Vertical", 7),
    Sketcher.Constraint("Coincident", 7, 1, 0, 2),
    Sketcher.Constraint("Equal", 0, 7),
    Sketcher.Constraint("DistanceY", 0, 2, -1, 1, Q("2 in")),
    Sketcher.Constraint("Angle", 2, Q("135 deg")),
    Sketcher.Constraint("Angle", 6, Q("149 deg")),
    Sketcher.Constraint("DistanceY", 3, 1, 3, 2, Q("0.47 in")),
    Sketcher.Constraint("DistanceY", 5, 1, 5, 2, Q("0.25 in")),
    Sketcher.Constraint("DistanceX", -1, 1, 0, 2, Q("1.5 in")),
    Sketcher.Constraint("DistanceY", 3, 2, -1, 1, Q("1.5 in")),
    Sketcher.Constraint("DistanceX", 1, 1, 1, 2, Q("0.155 in")),
    Sketcher.Constraint("DistanceX", 4, 2, 4, 1, Q("0.0245 in")),
])
sketch9.setExpression("Constraints[18]", "Params.sketch9_height")
sketch9.setExpression("Constraints[19]", "Params.sketch9_height2")
sketch9.setExpression("Constraints[22]", "Params.sketch9_width")
groove4 = body.newObject("PartDesign::Groove", "Groove003")
groove4.Profile = sketch9
groove4.ReferenceAxis = (sketch9, ["Axis0"])
groove4.setExpression("Angle", "Params.groove4_angle")
doc.recompute()

linearpattern13 = body.newObject("PartDesign::LinearPattern", "LinearPattern012")
linearpattern13.Originals = [groove4]
linearpattern13.Direction = (doc.getObject("X_Axis"), [""])
linearpattern13.Mode = "offset"
linearpattern13.setExpression("Offset", "Params.linearpattern13_pitch")
linearpattern13.Occurrences = 2
linearpattern13.Reversed = True
body.Tip = linearpattern13

doc.recompute()
